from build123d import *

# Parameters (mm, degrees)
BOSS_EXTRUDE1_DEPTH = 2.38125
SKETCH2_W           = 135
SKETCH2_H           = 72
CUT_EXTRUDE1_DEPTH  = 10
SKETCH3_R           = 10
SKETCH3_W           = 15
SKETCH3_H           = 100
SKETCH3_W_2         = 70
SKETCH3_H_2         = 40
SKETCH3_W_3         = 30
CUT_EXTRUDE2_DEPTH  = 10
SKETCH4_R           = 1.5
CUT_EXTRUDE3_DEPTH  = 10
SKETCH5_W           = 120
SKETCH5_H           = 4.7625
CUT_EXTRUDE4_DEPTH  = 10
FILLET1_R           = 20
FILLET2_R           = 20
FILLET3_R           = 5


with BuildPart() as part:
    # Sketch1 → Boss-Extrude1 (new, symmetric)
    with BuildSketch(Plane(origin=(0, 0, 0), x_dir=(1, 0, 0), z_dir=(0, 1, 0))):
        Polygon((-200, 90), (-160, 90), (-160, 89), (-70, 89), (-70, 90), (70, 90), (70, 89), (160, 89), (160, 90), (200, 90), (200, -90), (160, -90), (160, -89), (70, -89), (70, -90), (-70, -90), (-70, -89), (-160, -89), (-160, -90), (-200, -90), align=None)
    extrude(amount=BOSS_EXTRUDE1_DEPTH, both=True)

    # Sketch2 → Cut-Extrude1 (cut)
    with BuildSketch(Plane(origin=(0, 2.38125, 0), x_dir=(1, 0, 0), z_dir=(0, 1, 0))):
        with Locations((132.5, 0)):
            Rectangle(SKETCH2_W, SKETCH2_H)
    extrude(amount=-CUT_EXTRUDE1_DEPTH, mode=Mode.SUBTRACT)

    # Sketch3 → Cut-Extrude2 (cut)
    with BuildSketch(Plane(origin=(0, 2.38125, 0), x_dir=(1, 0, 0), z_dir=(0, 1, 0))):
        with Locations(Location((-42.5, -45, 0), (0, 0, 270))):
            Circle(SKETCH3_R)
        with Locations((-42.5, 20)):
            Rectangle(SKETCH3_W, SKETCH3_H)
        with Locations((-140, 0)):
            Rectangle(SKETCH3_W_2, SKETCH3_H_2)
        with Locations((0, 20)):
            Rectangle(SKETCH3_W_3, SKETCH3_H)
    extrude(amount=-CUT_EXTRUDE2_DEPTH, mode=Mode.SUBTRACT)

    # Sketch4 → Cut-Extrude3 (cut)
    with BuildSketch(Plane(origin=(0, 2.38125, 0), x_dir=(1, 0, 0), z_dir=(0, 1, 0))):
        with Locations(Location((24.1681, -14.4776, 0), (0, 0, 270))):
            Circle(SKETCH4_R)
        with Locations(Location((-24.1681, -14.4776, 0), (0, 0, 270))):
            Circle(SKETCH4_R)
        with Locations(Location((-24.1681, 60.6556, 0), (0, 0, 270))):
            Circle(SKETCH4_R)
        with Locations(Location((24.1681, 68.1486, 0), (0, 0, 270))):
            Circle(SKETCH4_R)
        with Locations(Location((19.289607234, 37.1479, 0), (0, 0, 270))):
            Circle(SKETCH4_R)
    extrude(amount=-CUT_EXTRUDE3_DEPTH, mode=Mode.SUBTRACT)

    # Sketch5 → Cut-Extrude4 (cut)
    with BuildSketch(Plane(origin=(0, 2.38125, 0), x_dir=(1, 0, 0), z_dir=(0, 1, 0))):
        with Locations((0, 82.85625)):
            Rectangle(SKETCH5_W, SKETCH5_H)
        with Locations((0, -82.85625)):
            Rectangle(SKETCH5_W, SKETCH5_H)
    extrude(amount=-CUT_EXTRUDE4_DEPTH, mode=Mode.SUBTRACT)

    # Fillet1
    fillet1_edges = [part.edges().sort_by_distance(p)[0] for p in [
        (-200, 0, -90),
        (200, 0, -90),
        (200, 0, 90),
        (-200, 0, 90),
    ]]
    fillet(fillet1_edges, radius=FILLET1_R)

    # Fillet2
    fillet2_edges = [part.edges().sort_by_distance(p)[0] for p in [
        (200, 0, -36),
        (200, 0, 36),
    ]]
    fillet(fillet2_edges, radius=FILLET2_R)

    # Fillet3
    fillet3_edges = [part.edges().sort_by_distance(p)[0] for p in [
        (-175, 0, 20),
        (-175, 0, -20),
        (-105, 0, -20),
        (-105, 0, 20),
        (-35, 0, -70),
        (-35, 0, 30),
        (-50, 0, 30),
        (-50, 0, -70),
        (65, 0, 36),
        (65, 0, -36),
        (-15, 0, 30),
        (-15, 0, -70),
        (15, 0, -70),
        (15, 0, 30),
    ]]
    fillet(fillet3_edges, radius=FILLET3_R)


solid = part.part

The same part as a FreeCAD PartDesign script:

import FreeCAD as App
import Part
import Sketcher

V = App.Vector


def edges_at(feature, points):
    """Names of the edges that pass closest to the given points."""
    edges = feature.Shape.Edges
    near = lambda p: min(range(len(edges)), key=lambda i: edges[i].distToShape(Part.Vertex(*p))[0])
    return sorted({f"Edge{near(p) + 1}" for p in points})

doc = App.newDocument("Part")
body = doc.addObject("PartDesign::Body", "Body")

# Sketch on XZ plane
sketch1 = body.newObject("Sketcher::SketchObject", "Sketch")
sketch1.AttachmentSupport = (doc.getObject("XZ_Plane"), [""])
sketch1.MapMode = "FlatFace"
sketch1.addGeometry([
    Part.LineSegment(V(-160, -90, 0), V(-200, -90, 0)),  # 0
    Part.LineSegment(V(-200, -90, 0), V(-200, 90, 0)),  # 1
    Part.LineSegment(V(-200, 90, 0), V(-160, 90, 0)),  # 2
    Part.LineSegment(V(-160, 90, 0), V(-160, 89, 0)),  # 3
    Part.LineSegment(V(-160, 89, 0), V(-70, 89, 0)),  # 4
    Part.LineSegment(V(-70, 89, 0), V(-70, 90, 0)),  # 5
    Part.LineSegment(V(-70, 90, 0), V(70, 90, 0)),  # 6
    Part.LineSegment(V(70, 90, 0), V(70, 89, 0)),  # 7
    Part.LineSegment(V(70, 89, 0), V(160, 89, 0)),  # 8
    Part.LineSegment(V(160, 89, 0), V(160, 90, 0)),  # 9
    Part.LineSegment(V(160, 90, 0), V(200, 90, 0)),  # 10
    Part.LineSegment(V(200, 90, 0), V(200, -90, 0)),  # 11
    Part.LineSegment(V(200, -90, 0), V(160, -90, 0)),  # 12
    Part.LineSegment(V(160, -90, 0), V(160, -89, 0)),  # 13
    Part.LineSegment(V(160, -89, 0), V(70, -89, 0)),  # 14
    Part.LineSegment(V(70, -89, 0), V(70, -90, 0)),  # 15
    Part.LineSegment(V(70, -90, 0), V(-70, -90, 0)),  # 16
    Part.LineSegment(V(-70, -90, 0), V(-70, -89, 0)),  # 17
    Part.LineSegment(V(-70, -89, 0), V(-160, -89, 0)),  # 18
    Part.LineSegment(V(-160, -89, 0), V(-160, -90, 0)),  # 19
], False)
sketch1.addConstraint([
    Sketcher.Constraint("Coincident", 0, 2, 1, 1),
    Sketcher.Constraint("Coincident", 1, 2, 2, 1),
    Sketcher.Constraint("Coincident", 2, 2, 3, 1),
    Sketcher.Constraint("Coincident", 3, 2, 4, 1),
    Sketcher.Constraint("Coincident", 4, 2, 5, 1),
    Sketcher.Constraint("Coincident", 5, 2, 6, 1),
    Sketcher.Constraint("Coincident", 6, 2, 7, 1),
    Sketcher.Constraint("Coincident", 7, 2, 8, 1),
    Sketcher.Constraint("Coincident", 8, 2, 9, 1),
    Sketcher.Constraint("Coincident", 9, 2, 10, 1),
    Sketcher.Constraint("Coincident", 10, 2, 11, 1),
    Sketcher.Constraint("Coincident", 11, 2, 12, 1),
    Sketcher.Constraint("Coincident", 12, 2, 13, 1),
    Sketcher.Constraint("Coincident", 13, 2, 14, 1),
    Sketcher.Constraint("Coincident", 14, 2, 15, 1),
    Sketcher.Constraint("Coincident", 15, 2, 16, 1),
    Sketcher.Constraint("Coincident", 16, 2, 17, 1),
    Sketcher.Constraint("Coincident", 17, 2, 18, 1),
    Sketcher.Constraint("Coincident", 18, 2, 19, 1),
    Sketcher.Constraint("Coincident", 19, 2, 0, 1),
    Sketcher.Constraint("Horizontal", 0),
    Sketcher.Constraint("Vertical", 1),
    Sketcher.Constraint("Horizontal", 2),
    Sketcher.Constraint("Vertical", 3),
    Sketcher.Constraint("Horizontal", 4),
    Sketcher.Constraint("Vertical", 5),
    Sketcher.Constraint("Horizontal", 6),
    Sketcher.Constraint("Vertical", 7),
    Sketcher.Constraint("Horizontal", 8),
    Sketcher.Constraint("Vertical", 9),
    Sketcher.Constraint("Horizontal", 10),
    Sketcher.Constraint("Vertical", 11),
    Sketcher.Constraint("Horizontal", 12),
    Sketcher.Constraint("Vertical", 13),
    Sketcher.Constraint("Horizontal", 14),
    Sketcher.Constraint("Vertical", 15),
    Sketcher.Constraint("Horizontal", 16),
    Sketcher.Constraint("Vertical", 17),
    Sketcher.Constraint("Horizontal", 18),
    Sketcher.Constraint("Vertical", 19),
    Sketcher.Constraint("Symmetric", 0, 2, 10, 2, -1, 1),
    Sketcher.Constraint("Symmetric", 2, 2, 12, 2, -1, 1),
    Sketcher.Constraint("Symmetric", 4, 2, 14, 2, -1, 1),
    Sketcher.Constraint("Symmetric", 6, 2, 16, 2, -1, 1),
    Sketcher.Constraint("Symmetric", 8, 2, 18, 2, -1, 1),
    Sketcher.Constraint("Symmetric", 4, 2, 7, 2, -2),
    Sketcher.Constraint("Symmetric", 2, 2, 9, 2, -2),
    Sketcher.Constraint("Horizontal", 2, 2, 5, 2),
    Sketcher.Constraint("DistanceX", 0, 2, 0, 1, 40.0),
    Sketcher.Constraint("DistanceX", 4, 1, 4, 2, 90.0),
    Sketcher.Constraint("DistanceX", 6, 1, 6, 2, 140.0),
    Sketcher.Constraint("DistanceY", 1, 1, 1, 2, 180.0),
    Sketcher.Constraint("DistanceY", 3, 2, 3, 1, 1.0),
])
pad1 = body.newObject("PartDesign::Pad", "Pad")
pad1.Profile = sketch1
pad1.Length = 4.7625
pad1.Midplane = True

# Sketch on XZ plane
sketch2 = body.newObject("Sketcher::SketchObject", "Sketch001")
sketch2.AttachmentSupport = (doc.getObject("XZ_Plane"), [""])
sketch2.MapMode = "FlatFace"
sketch2.AttachmentOffset = App.Placement(V(0, 0, -2.38125), App.Rotation())
sketch2.addGeometry([
    Part.LineSegment(V(65, -36, 0), V(65, 36, 0)),
    Part.LineSegment(V(65, 36, 0), V(200, 36, 0)),
    Part.LineSegment(V(200, 36, 0), V(200, -36, 0)),
    Part.LineSegment(V(200, -36, 0), V(65, -36, 0)),
], False)
sketch2.addConstraint([
    Sketcher.Constraint("Coincident", 0, 2, 1, 1),
    Sketcher.Constraint("Coincident", 1, 2, 2, 1),
    Sketcher.Constraint("Coincident", 2, 2, 3, 1),
    Sketcher.Constraint("Coincident", 3, 2, 0, 1),
    Sketcher.Constraint("Vertical", 0),
    Sketcher.Constraint("Horizontal", 1),
    Sketcher.Constraint("Vertical", 2),
    Sketcher.Constraint("Horizontal", 3),
    Sketcher.Constraint("DistanceX", 1, 1, 1, 2, 135.0),
    Sketcher.Constraint("DistanceY", 0, 1, 0, 2, 72.0),
    Sketcher.Constraint("DistanceX", -1, 1, 0, 2, 65.0),
    Sketcher.Constraint("DistanceY", -1, 1, 0, 2, 36.0),
])
pocket1 = body.newObject("PartDesign::Pocket", "Pocket")
pocket1.Profile = sketch2
pocket1.Length = 10
pocket1.Reversed = True

# Sketch on XZ plane
sketch3 = body.newObject("Sketcher::SketchObject", "Sketch002")
sketch3.AttachmentSupport = (doc.getObject("XZ_Plane"), [""])
sketch3.MapMode = "FlatFace"
sketch3.AttachmentOffset = App.Placement(V(0, 0, -2.38125), App.Rotation())
sketch3.addGeometry([
    Part.Circle(V(-42, 45, 0), V(0, 0, 1), 10),  # 0
    Part.LineSegment(V(-50, -70, 0), V(-50, 30, 0)),  # 1
    Part.LineSegment(V(-50, 30, 0), V(-35, 30, 0)),  # 2
    Part.LineSegment(V(-35, 30, 0), V(-35, -70, 0)),  # 3
    Part.LineSegment(V(-35, -70, 0), V(-50, -70, 0)),  # 4
    Part.LineSegment(V(-175, -20, 0), V(-175, 20, 0)),  # 5
    Part.LineSegment(V(-175, 20, 0), V(-105, 20, 0)),  # 6
    Part.LineSegment(V(-105, 20, 0), V(-105, -20, 0)),  # 7
    Part.LineSegment(V(-105, -20, 0), V(-175, -20, 0)),  # 8
    Part.LineSegment(V(-15, -70, 0), V(-15, 30, 0)),  # 9
    Part.LineSegment(V(-15, 30, 0), V(15, 30, 0)),  # 10
    Part.LineSegment(V(15, 30, 0), V(15, -70, 0)),  # 11
    Part.LineSegment(V(15, -70, 0), V(-15, -70, 0)),  # 12
], False)
sketch3.addConstraint([
    Sketcher.Constraint("Coincident", 1, 2, 2, 1),
    Sketcher.Constraint("Coincident", 2, 2, 3, 1),
    Sketcher.Constraint("Coincident", 3, 2, 4, 1),
    Sketcher.Constraint("Coincident", 4, 2, 1, 1),
    Sketcher.Constraint("Coincident", 5, 2, 6, 1),
    Sketcher.Constraint("Coincident", 6, 2, 7, 1),
    Sketcher.Constraint("Coincident", 7, 2, 8, 1),
    Sketcher.Constraint("Coincident", 8, 2, 5, 1),
    Sketcher.Constraint("Coincident", 9, 2, 10, 1),
    Sketcher.Constraint("Coincident", 10, 2, 11, 1),
    Sketcher.Constraint("Coincident", 11, 2, 12, 1),
    Sketcher.Constraint("Coincident", 12, 2, 9, 1),
    Sketcher.Constraint("Vertical", 1),
    Sketcher.Constraint("Horizontal", 2),
    Sketcher.Constraint("Vertical", 3),
    Sketcher.Constraint("Horizontal", 4),
    Sketcher.Constraint("Vertical", 5),
    Sketcher.Constraint("Horizontal", 6),
    Sketcher.Constraint("Vertical", 7),
    Sketcher.Constraint("Horizontal", 8),
    Sketcher.Constraint("Vertical", 9),
    Sketcher.Constraint("Horizontal", 10),
    Sketcher.Constraint("Vertical", 11),
    Sketcher.Constraint("Horizontal", 12),
    Sketcher.Constraint("Horizontal", 2, 2, 9, 2),
    Sketcher.Constraint("Horizontal", 4, 2, 11, 2),
    Sketcher.Constraint("Diameter", 0, 20.0),
    Sketcher.Constraint("DistanceX", 2, 1, 2, 2, 15.0),
    Sketcher.Constraint("DistanceX", 6, 1, 6, 2, 70.0),
    Sketcher.Constraint("DistanceX", 10, 1, 10, 2, 30.0),
    Sketcher.Constraint("DistanceY", 1, 1, 1, 2, 100.0),
    Sketcher.Constraint("DistanceY", 5, 1, 5, 2, 40.0),
    Sketcher.Constraint("DistanceY", -1, 1, 0, 3, 45.0),
    Sketcher.Constraint("DistanceX", 1, 2, -1, 1, 50.0),
    Sketcher.Constraint("DistanceY", -1, 1, 1, 2, 30.0),
    Sketcher.Constraint("DistanceX", 5, 2, -1, 1, 175.0),
    Sketcher.Constraint("DistanceY", -1, 1, 5, 2, 20.0),
    Sketcher.Constraint("DistanceX", 9, 2, -1, 1, 15.0),
    Sketcher.Constraint("DistanceX", 0, 3, -1, 1, 42.5),
])
pocket2 = body.newObject("PartDesign::Pocket", "Pocket001")
pocket2.Profile = sketch3
pocket2.Length = 10
pocket2.Reversed = True

# Sketch on XZ plane
sketch4 = body.newObject("Sketcher::SketchObject", "Sketch003")
sketch4.AttachmentSupport = (doc.getObject("XZ_Plane"), [""])
sketch4.MapMode = "FlatFace"
sketch4.AttachmentOffset = App.Placement(V(0, 0, -2.38125), App.Rotation())
sketch4.addGeometry([
    Part.Circle(V(24.2, 14.5, 0), V(0, 0, 1), 1.5),  # 0
    Part.Circle(V(-24.2, 14.5, 0), V(0, 0, 1), 1.5),  # 1
    Part.Circle(V(-24.2, -60.7, 0), V(0, 0, 1), 1.5),  # 2
    Part.Circle(V(24.2, -68.1, 0), V(0, 0, 1), 1.5),  # 3
    Part.Circle(V(19.3, -37.1, 0), V(0, 0, 1), 1.5),  # 4
], False)
sketch4.addConstraint([
    Sketcher.Constraint("Equal", 0, 1),
    Sketcher.Constraint("Equal", 1, 2),
    Sketcher.Constraint("Equal", 2, 3),
    Sketcher.Constraint("Equal", 3, 4),
    Sketcher.Constraint("Symmetric", 0, 3, 1, 3, -2),
    Sketcher.Constraint("Vertical", 1, 3, 2, 3),
    Sketcher.Constraint("Vertical", 0, 3, 3, 3),
    Sketcher.Constraint("Diameter", 0, 3.0),
    Sketcher.Constraint("DistanceY", 3, 3, 2, 3, 7.493),
    Sketcher.Constraint("DistanceX", -1, 1, 0, 3, 24.1681),
    Sketcher.Constraint("DistanceY", -1, 1, 0, 3, 14.4776),
    Sketcher.Constraint("DistanceY", 2, 3, -1, 1, 60.6556),
    Sketcher.Constraint("DistanceY", 4, 3, -1, 1, 37.1479),
    Sketcher.Constraint("DistanceX", -1, 1, 4, 3, 19.289607),
])
pocket3 = body.newObject("PartDesign::Pocket", "Pocket002")
pocket3.Profile = sketch4
pocket3.Length = 10
pocket3.Reversed = True

# Sketch on XZ plane
sketch5 = body.newObject("Sketcher::SketchObject", "Sketch004")
sketch5.AttachmentSupport = (doc.getObject("XZ_Plane"), [""])
sketch5.MapMode = "FlatFace"
sketch5.AttachmentOffset = App.Placement(V(0, 0, -2.38125), App.Rotation())
sketch5.addGeometry([
    Part.LineSegment(V(-60, -85.2, 0), V(-60, -80.5, 0)),  # 0
    Part.LineSegment(V(-60, -80.5, 0), V(60, -80.5, 0)),  # 1
    Part.LineSegment(V(60, -80.5, 0), V(60, -85.2, 0)),  # 2
    Part.LineSegment(V(60, -85.2, 0), V(-60, -85.2, 0)),  # 3
    Part.LineSegment(V(-60, 80.5, 0), V(-60, 85.2, 0)),  # 4
    Part.LineSegment(V(-60, 85.2, 0), V(60, 85.2, 0)),  # 5
    Part.LineSegment(V(60, 85.2, 0), V(60, 80.5, 0)),  # 6
    Part.LineSegment(V(60, 80.5, 0), V(-60, 80.5, 0)),  # 7
], False)
sketch5.addConstraint([
    Sketcher.Constraint("Coincident", 0, 2, 1, 1),
    Sketcher.Constraint("Coincident", 1, 2, 2, 1),
    Sketcher.Constraint("Coincident", 2, 2, 3, 1),
    Sketcher.Constraint("Coincident", 3, 2, 0, 1),
    Sketcher.Constraint("Coincident", 4, 2, 5, 1),
    Sketcher.Constraint("Coincident", 5, 2, 6, 1),
    Sketcher.Constraint("Coincident", 6, 2, 7, 1),
    Sketcher.Constraint("Coincident", 7, 2, 4, 1),
    Sketcher.Constraint("Vertical", 0),
    Sketcher.Constraint("Horizontal", 1),
    Sketcher.Constraint("Vertical", 2),
    Sketcher.Constraint("Horizontal", 3),
    Sketcher.Constraint("Vertical", 4),
    Sketcher.Constraint("Horizontal", 5),
    Sketcher.Constraint("Vertical", 6),
    Sketcher.Constraint("Horizontal", 7),
    Sketcher.Constraint("Symmetric", 2, 2, 4, 2, -1, 1),
    Sketcher.Constraint("Symmetric", 0, 2, 6, 2, -1, 1),
    Sketcher.Constraint("Vertical", 3, 2, 4, 2),
    Sketcher.Constraint("DistanceX", 1, 1, 1, 2, 120.0),
    Sketcher.Constraint("DistanceY", 1, 2, 6, 2, 160.95),
    Sketcher.Constraint("DistanceY", 0, 1, 0, 2, 4.7625),
])
pocket4 = body.newObject("PartDesign::Pocket", "Pocket003")
pocket4.Profile = sketch5
pocket4.Length = 10
pocket4.Reversed = True
doc.recompute()

fillet = body.newObject("PartDesign::Fillet", "Fillet")
fillet.Base = (pocket4, edges_at(pocket4, [
    (-200, 0, -90),
    (200, 0, -90),
    (200, 0, 90),
    (-200, 0, 90),
]))
fillet.Radius = 20
doc.recompute()

fillet2 = body.newObject("PartDesign::Fillet", "Fillet001")
fillet2.Base = (fillet, edges_at(fillet, [(200, 0, -36), (200, 0, 36)]))
fillet2.Radius = 20
doc.recompute()

fillet3 = body.newObject("PartDesign::Fillet", "Fillet002")
fillet3.Base = (fillet2, edges_at(fillet2, [
    (-175, 0, 20),
    (-175, 0, -20),
    (-105, 0, -20),
    (-105, 0, 20),
    (-35, 0, -70),
    (-35, 0, 30),
    (-50, 0, 30),
    (-50, 0, -70),
    (65, 0, 36),
    (65, 0, -36),
    (-15, 0, 30),
    (-15, 0, -70),
    (15, 0, -70),
    (15, 0, 30),
]))
fillet3.Radius = 5

doc.recompute()
